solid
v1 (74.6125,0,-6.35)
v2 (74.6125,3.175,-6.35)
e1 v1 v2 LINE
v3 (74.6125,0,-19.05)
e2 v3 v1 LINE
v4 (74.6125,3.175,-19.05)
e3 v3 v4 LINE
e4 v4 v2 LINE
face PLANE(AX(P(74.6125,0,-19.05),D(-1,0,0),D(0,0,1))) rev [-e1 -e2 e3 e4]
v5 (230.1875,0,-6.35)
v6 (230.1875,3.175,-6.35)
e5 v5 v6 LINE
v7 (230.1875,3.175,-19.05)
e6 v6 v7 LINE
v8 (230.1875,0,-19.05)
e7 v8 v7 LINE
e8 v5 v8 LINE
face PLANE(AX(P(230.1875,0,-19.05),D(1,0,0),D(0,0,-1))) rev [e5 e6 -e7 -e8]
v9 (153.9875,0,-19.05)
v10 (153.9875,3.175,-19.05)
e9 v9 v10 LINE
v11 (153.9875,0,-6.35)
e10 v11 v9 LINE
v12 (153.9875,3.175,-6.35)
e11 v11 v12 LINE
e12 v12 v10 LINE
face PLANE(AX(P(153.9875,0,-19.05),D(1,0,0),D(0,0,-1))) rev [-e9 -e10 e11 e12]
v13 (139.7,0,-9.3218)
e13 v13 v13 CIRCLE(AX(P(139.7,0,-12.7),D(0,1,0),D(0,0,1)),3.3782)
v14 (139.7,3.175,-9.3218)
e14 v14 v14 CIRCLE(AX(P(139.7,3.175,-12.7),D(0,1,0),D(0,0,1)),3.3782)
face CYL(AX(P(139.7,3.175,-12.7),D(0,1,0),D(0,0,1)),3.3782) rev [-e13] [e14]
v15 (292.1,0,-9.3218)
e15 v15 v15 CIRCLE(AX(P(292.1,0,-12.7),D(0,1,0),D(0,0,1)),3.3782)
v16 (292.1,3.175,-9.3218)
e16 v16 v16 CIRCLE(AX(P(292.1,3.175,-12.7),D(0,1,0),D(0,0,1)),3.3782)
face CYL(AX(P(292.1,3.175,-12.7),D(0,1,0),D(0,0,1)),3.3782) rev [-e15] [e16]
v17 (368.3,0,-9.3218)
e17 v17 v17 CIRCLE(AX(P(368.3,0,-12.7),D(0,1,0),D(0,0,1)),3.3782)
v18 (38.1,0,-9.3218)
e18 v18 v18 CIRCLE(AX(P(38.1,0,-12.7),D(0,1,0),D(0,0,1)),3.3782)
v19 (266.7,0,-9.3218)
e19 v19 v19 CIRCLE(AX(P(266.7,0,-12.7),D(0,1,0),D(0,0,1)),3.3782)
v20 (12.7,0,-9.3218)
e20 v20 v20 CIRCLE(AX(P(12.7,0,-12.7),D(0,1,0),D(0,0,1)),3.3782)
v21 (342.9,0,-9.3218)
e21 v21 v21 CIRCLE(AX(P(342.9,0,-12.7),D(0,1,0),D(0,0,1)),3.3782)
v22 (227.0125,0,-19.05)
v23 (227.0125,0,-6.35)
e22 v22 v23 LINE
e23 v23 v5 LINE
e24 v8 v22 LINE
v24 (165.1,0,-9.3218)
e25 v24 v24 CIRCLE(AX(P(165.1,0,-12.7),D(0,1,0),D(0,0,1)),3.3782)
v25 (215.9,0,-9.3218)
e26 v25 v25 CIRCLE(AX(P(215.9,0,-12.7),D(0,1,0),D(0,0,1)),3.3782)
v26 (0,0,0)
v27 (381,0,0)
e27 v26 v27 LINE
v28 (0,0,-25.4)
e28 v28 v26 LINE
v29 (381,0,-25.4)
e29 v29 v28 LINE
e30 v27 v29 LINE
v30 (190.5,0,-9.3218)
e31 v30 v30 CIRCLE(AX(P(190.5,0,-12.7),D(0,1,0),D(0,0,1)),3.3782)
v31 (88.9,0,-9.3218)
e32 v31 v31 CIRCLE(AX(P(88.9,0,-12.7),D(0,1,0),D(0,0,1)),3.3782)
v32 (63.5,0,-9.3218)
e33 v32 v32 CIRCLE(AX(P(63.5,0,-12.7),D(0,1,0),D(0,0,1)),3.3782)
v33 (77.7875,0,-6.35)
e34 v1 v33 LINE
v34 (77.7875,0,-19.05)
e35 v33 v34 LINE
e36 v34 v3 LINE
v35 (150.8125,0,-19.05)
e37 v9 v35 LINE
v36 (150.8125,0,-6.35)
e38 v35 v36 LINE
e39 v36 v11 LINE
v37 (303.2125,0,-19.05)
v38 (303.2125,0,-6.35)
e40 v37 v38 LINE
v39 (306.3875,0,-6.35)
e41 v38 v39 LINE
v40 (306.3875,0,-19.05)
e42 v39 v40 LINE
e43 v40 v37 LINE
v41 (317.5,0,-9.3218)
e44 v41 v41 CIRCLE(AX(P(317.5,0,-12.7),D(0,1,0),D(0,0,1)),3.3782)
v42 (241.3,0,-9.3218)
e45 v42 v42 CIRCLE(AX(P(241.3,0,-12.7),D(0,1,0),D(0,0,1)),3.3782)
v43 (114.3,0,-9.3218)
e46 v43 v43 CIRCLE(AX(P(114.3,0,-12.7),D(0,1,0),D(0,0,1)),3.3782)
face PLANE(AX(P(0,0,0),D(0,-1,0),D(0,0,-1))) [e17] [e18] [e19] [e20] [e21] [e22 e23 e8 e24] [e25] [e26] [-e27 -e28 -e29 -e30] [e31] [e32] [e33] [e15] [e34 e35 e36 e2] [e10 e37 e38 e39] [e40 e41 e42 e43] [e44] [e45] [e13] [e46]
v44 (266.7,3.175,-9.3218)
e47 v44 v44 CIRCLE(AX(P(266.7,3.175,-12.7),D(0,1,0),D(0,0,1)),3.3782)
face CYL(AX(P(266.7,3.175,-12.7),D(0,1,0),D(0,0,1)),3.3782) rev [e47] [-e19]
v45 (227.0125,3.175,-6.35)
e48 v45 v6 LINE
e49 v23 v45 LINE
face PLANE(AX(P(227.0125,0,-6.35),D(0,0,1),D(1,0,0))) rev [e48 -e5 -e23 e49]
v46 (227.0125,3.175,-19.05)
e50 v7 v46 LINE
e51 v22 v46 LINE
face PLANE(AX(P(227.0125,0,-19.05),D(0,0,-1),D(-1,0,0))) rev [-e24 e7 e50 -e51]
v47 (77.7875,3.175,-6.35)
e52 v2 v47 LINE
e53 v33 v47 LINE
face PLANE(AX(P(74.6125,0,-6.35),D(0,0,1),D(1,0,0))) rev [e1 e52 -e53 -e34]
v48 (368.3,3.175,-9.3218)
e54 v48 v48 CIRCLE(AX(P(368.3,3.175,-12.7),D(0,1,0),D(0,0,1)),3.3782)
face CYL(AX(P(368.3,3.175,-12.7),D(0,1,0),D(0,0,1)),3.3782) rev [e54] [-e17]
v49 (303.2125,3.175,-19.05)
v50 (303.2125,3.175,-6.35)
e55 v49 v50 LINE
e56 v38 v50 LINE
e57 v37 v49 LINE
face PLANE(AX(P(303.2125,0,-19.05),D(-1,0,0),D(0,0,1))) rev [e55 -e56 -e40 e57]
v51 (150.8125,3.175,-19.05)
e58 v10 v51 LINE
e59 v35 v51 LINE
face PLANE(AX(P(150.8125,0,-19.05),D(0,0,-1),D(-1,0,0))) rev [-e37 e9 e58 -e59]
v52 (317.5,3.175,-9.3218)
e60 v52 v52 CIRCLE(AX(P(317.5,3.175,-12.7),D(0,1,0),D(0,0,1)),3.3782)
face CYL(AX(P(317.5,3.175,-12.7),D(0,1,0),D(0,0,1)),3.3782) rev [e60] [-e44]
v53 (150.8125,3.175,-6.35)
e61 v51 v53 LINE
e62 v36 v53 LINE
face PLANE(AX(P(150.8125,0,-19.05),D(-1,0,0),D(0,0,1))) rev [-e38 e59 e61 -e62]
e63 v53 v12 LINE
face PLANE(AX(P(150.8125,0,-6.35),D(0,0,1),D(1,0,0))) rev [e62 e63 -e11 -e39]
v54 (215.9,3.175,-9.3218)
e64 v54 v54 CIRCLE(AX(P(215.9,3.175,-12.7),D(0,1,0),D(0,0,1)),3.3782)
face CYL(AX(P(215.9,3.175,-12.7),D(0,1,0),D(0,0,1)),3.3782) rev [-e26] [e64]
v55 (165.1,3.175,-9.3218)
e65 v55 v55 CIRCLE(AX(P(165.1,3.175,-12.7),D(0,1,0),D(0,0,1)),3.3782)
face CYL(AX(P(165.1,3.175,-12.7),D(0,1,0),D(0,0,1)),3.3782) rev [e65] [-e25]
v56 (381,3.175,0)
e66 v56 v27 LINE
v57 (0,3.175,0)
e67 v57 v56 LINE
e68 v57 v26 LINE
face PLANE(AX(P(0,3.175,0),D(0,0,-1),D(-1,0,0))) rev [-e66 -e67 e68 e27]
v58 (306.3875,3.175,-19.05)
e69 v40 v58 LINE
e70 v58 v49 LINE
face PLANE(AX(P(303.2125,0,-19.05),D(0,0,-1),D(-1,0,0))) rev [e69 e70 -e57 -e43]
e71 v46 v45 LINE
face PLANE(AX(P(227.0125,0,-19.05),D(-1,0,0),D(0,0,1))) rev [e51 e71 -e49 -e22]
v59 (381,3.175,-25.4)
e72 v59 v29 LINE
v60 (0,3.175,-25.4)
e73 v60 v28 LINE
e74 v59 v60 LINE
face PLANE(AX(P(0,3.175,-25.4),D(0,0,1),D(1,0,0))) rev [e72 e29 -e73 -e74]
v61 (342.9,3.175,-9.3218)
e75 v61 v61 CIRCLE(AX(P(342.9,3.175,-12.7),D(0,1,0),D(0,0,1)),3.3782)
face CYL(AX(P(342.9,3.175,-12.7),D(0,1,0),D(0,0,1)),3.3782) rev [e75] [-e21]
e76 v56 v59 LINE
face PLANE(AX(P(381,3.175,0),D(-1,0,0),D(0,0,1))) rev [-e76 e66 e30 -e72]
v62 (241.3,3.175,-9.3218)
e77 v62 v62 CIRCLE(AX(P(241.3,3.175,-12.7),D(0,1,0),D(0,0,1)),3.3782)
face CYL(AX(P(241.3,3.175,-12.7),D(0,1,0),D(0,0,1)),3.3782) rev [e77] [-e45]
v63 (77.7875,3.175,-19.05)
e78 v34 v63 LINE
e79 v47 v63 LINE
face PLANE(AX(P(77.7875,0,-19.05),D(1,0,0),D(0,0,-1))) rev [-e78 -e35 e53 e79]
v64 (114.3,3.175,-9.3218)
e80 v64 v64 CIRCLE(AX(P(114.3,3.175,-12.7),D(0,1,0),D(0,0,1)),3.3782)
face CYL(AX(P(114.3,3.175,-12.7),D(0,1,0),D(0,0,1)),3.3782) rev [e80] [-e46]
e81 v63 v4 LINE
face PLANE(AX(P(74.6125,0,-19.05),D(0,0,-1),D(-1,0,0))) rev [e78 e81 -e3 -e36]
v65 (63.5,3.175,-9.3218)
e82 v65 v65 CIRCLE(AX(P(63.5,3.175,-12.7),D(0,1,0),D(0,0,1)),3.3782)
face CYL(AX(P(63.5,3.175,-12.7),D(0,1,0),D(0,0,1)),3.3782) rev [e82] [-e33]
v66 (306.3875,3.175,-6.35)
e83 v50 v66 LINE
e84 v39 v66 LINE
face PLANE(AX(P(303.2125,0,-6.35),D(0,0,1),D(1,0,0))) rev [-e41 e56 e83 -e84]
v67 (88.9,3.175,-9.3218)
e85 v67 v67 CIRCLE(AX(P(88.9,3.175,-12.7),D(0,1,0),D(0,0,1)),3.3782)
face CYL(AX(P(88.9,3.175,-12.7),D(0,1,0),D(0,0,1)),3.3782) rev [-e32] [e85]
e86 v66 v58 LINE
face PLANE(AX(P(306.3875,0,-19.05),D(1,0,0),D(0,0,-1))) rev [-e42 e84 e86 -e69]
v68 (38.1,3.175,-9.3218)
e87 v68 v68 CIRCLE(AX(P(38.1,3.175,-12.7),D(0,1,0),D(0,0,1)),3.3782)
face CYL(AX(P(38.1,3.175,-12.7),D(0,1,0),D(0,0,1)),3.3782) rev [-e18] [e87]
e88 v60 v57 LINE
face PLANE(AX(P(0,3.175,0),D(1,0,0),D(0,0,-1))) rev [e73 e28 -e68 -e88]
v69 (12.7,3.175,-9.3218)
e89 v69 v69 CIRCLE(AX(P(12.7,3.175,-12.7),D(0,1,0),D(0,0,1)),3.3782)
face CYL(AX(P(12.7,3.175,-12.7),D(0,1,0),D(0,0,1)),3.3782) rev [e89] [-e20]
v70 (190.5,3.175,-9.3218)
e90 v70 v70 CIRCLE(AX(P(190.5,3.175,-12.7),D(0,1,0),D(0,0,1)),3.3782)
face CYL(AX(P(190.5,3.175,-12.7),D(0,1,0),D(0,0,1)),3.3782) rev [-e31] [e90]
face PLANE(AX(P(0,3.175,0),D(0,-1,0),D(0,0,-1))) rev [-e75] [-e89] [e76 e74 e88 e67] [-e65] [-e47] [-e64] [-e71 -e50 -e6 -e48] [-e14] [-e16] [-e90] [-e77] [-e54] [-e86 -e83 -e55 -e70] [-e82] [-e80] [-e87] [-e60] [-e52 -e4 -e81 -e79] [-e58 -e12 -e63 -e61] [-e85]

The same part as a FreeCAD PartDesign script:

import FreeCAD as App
import Part
import Sketcher
Q = App.Units.Quantity


def add_polygon(sketch, points):
    """Adds a closed chain of lines whose ends are joined by coincident constraints."""
    first, n = sketch.GeometryCount, len(points)
    for a, b in zip(points, points[1:] + points[:1]):
        sketch.addGeometry(Part.LineSegment(App.Vector(*a, 0), App.Vector(*b, 0)), False)
    for i in range(n):
        sketch.addConstraint(Sketcher.Constraint("Coincident", first + i, 2, first + (i + 1) % n, 1))

doc = App.newDocument("Part")
body = doc.addObject("PartDesign::Body", "Body")

sketch1 = body.newObject("Sketcher::SketchObject", "Sketch")
sketch1.AttachmentSupport = (doc.getObject("XZ_Plane"), [""])
sketch1.MapMode = "FlatFace"
add_polygon(sketch1, [(0, -25), (0, 0), (381, 0), (381, -25)])
sketch1.addConstraint([
    Sketcher.Constraint("Vertical", 0),
    Sketcher.Constraint("Horizontal", 1),
    Sketcher.Constraint("Vertical", 2),
    Sketcher.Constraint("Horizontal", 3),
    Sketcher.Constraint("Coincident", 0, 2, -1, 1),
    Sketcher.Constraint("DistanceX", 1, 1, 1, 2, Q("15 in")),
    Sketcher.Constraint("DistanceY", 0, 1, 0, 2, Q("1 in")),
])
pad1 = body.newObject("PartDesign::Pad", "Pad")
pad1.Profile = sketch1
pad1.Length = Q("0.125 in")
pad1.Reversed = True

sketch2 = body.newObject("Sketcher::SketchObject", "Sketch001")
sketch2.AttachmentSupport = (doc.getObject("XZ_Plane"), [""])
sketch2.MapMode = "FlatFace"
sketch2.AttachmentOffset = App.Placement(App.Vector(0, 0, -0.125 * 25.4), App.Rotation())
sketch2.addGeometry(Part.Circle(App.Vector(12.7, -12.7, 0), App.Vector(0, 0, 1), 3.4), False)
sketch2.addConstraint([
    Sketcher.Constraint("Diameter", 0, Q("0.266 in")),
    Sketcher.Constraint("DistanceX", -1, 1, 0, 3, Q("0.5 in")),
    Sketcher.Constraint("DistanceY", 0, 3, -1, 1, Q("0.5 in")),
])
doc.recompute()
hole = body.newObject("PartDesign::Hole", "Hole")
hole.Profile = sketch2
hole.ThreadType = "None"
hole.Diameter = Q("0.266 in")
hole.DepthType = "ThroughAll"
hole.Reversed = True
doc.recompute()

linearpattern = body.newObject("PartDesign::LinearPattern", "LinearPattern")
linearpattern.Originals = [hole]
linearpattern.Direction = (doc.getObject("X_Axis"), [""])
linearpattern.Mode = "offset"
linearpattern.Offset = Q("1 in")
linearpattern.Occurrences = 15
body.Tip = linearpattern

sketch3 = body.newObject("Sketcher::SketchObject", "Sketch002")
sketch3.AttachmentSupport = (doc.getObject("XZ_Plane"), [""])
sketch3.MapMode = "FlatFace"
sketch3.AttachmentOffset = App.Placement(App.Vector(0, 0, -0.125 * 25.4), App.Rotation())
add_polygon(sketch3, [(74.6, -19.1), (74.6, -6.3), (77.8, -6.3), (77.8, -19.1)])
sketch3.addConstraint([
    Sketcher.Constraint("Vertical", 0),
    Sketcher.Constraint("Horizontal", 1),
    Sketcher.Constraint("Vertical", 2),
    Sketcher.Constraint("Horizontal", 3),
    Sketcher.Constraint("DistanceY", 0, 1, 0, 2, Q("0.5 in")),
    Sketcher.Constraint("DistanceX", 1, 1, 1, 2, Q("0.125 in")),
    Sketcher.Constraint("DistanceY", 0, 2, -1, 1, Q("0.25 in")),
    Sketcher.Constraint("DistanceX", -1, 1, 0, 2, Q("2.9375 in")),
])
pocket1 = body.newObject("PartDesign::Pocket", "Pocket")
pocket1.Profile = sketch3
pocket1.Length = Q("0.125 in")
pocket1.Reversed = True
doc.recompute()

linearpattern2 = body.newObject("PartDesign::LinearPattern", "LinearPattern001")
linearpattern2.Originals = [pocket1]
linearpattern2.Direction = (doc.getObject("X_Axis"), [""])
linearpattern2.Mode = "offset"
linearpattern2.Offset = Q("3 in")
linearpattern2.Occurrences = 4
body.Tip = linearpattern2

doc.recompute()
